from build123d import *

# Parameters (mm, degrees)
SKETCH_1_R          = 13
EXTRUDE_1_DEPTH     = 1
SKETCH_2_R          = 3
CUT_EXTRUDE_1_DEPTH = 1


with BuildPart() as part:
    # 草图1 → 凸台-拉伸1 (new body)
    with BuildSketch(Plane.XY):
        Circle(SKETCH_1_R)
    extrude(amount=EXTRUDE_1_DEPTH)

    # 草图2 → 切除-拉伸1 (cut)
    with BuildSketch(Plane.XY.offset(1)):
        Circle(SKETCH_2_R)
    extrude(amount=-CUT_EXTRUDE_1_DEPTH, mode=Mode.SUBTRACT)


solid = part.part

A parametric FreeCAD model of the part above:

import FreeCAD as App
import Part
import Sketcher
Q = App.Units.Quantity

doc = App.newDocument("Part")
params = doc.addObject("Spreadsheet::Sheet", "Params")
for row, (alias, value) in enumerate([
    ("sketch1_diameter", "26 mm"),
    ("pad1_length", "1 mm"),
    ("sketch2_diameter", "6 mm"),
    ("pocket1_length", "1 mm"),
], start=1):
    params.set(f"A{row}", alias)
    params.set(f"B{row}", "=" + value)
    params.setAlias(f"B{row}", alias)

body = doc.addObject("PartDesign::Body", "Body")

# Sketch on XY plane
sketch1 = doc.addObject("Sketcher::SketchObject", "Sketch")
body.addObject(sketch1)
sketch1.AttachmentSupport = (doc.XY_Plane, [""])
sketch1.MapMode = "FlatFace"
sketch1.addGeometry(Part.Circle(App.Vector(0, 0, 0), App.Vector(0, 0, 1), 13), False)
sketch1.addConstraint([
    Sketcher.Constraint("Coincident", 0, 3, -1, 1),
    Sketcher.Constraint("Diameter", 0, Q("26 mm")),
])
sketch1.setExpression("Constraints[1]", "Params.sketch1_diameter")
pad1 = doc.addObject("PartDesign::Pad", "Pad")
body.addObject(pad1)
pad1.Profile = sketch1
pad1.setExpression("Length", "Params.pad1_length")

# Sketch on XY plane
sketch2 = doc.addObject("Sketcher::SketchObject", "Sketch001")
body.addObject(sketch2)
sketch2.AttachmentSupport = (doc.XY_Plane, [""])
sketch2.MapMode = "FlatFace"
sketch2.AttachmentOffset = App.Placement(App.Vector(0, 0, 1), App.Rotation())
sketch2.addGeometry(Part.Circle(App.Vector(0, 0, 0), App.Vector(0, 0, 1), 3), False)
sketch2.addConstraint([
    Sketcher.Constraint("Coincident", 0, 3, -1, 1),
    Sketcher.Constraint("Diameter", 0, Q("6 mm")),
])
sketch2.setExpression("Constraints[1]", "Params.sketch2_diameter")
pocket1 = doc.addObject("PartDesign::Pocket", "Pocket")
body.addObject(pocket1)
pocket1.Profile = sketch2
pocket1.setExpression("Length", "Params.pocket1_length")

doc.recompute()
